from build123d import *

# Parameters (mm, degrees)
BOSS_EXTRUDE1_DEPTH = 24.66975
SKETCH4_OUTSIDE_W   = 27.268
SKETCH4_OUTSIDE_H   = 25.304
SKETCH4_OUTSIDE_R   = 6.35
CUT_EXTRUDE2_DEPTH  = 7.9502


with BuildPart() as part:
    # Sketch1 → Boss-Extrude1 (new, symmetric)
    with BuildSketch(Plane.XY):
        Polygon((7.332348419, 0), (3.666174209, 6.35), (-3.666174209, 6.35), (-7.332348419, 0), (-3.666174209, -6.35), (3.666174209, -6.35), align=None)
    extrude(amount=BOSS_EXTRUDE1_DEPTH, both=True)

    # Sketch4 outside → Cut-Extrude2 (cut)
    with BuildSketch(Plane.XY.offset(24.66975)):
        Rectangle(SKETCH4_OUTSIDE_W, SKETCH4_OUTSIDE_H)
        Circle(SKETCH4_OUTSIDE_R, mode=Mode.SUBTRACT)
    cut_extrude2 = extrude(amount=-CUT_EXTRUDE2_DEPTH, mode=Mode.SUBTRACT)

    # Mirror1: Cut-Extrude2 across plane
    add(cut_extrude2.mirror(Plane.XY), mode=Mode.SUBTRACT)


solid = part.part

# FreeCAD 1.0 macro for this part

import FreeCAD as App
import Part
import Sketcher

V = App.Vector
Q = App.Units.Quantity


def add_polygon(sketch, points):
    """Adds a closed chain of lines whose ends are joined by coincident constraints."""
    first, n = sketch.GeometryCount, len(points)
    for a, b in zip(points, points[1:] + points[:1]):
        sketch.addGeometry(Part.LineSegment(App.Vector(*a, 0), App.Vector(*b, 0)), False)
    for i in range(n):
        sketch.addConstraint(Sketcher.Constraint("Coincident", first + i, 2, first + (i + 1) % n, 1))

doc = App.newDocument("Part")
params = doc.addObject("Spreadsheet::Sheet", "Params")
for row, (alias, value) in enumerate([
    ("pad1_length", "1.9425 in"),
    ("sketch2_diameter", "0.5 in"),
    ("pocket1_length", "0.313 in"),
], start=1):
    params.set(f"A{row}", alias)
    params.set(f"B{row}", "=" + value)
    params.setAlias(f"B{row}", alias)

body = doc.addObject("PartDesign::Body", "Body")

sketch1 = body.newObject("Sketcher::SketchObject", "Sketch")
sketch1.AttachmentSupport = (doc.getObject("XY_Plane"), [""])
sketch1.MapMode = "FlatFace"
add_polygon(sketch1, [(7, 0), (4, 6), (-4, 6), (-7, 0), (-4, -6), (4, -6)])
sketch1.addConstraint(Sketcher.Constraint("Horizontal", 1))
sketch1.addConstraint(Sketcher.Constraint("Horizontal", 4))
sketch1.addConstraint(Sketcher.Constraint("Symmetric", 0, 2, 3, 2, -1, 1))
sketch1.addConstraint(Sketcher.Constraint("Symmetric", 2, 2, 5, 2, -1, 1))
sketch1.addConstraint(Sketcher.Constraint("PointOnObject", 2, 2, -1))
sketch1.addConstraint(Sketcher.Constraint("Parallel", 2, 5))
sketch1.addConstraint(Sketcher.Constraint("Vertical", 1, 2, 3, 2))
sketch1.addConstraint(Sketcher.Constraint("Angle", 0, Q("120 deg")))
sketch1.addConstraint(Sketcher.Constraint("DistanceY", 3, 2, 1, 2, Q("0.5 in")))
sketch1.addConstraint(Sketcher.Constraint("DistanceX", 1, 2, 1, 1, Q("7.332348 mm")))
pad1 = body.newObject("PartDesign::Pad", "Pad")
pad1.Profile = sketch1
pad1.setExpression("Length", "Params.pad1_length")
pad1.Midplane = True

sketch2 = body.newObject("Sketcher::SketchObject", "Sketch001")
sketch2.AttachmentSupport = (doc.getObject("XY_Plane"), [""])
sketch2.MapMode = "FlatFace"
sketch2.AttachmentOffset = App.Placement(V(0, 0, 24.66975), App.Rotation())
add_polygon(sketch2, [(-14, 13), (-14, -13), (14, -13), (14, 13)])
sketch2.addGeometry(Part.Circle(V(0, 0, 0), V(0, 0, 1), 6), False)
sketch2.addConstraint(Sketcher.Constraint("Vertical", 0))
sketch2.addConstraint(Sketcher.Constraint("Horizontal", 1))
sketch2.addConstraint(Sketcher.Constraint("Vertical", 2))
sketch2.addConstraint(Sketcher.Constraint("Horizontal", 3))
sketch2.addConstraint(Sketcher.Constraint("Coincident", 4, 3, -1, 1))
sketch2.addConstraint(Sketcher.Constraint("Symmetric", 0, 2, 2, 2, -1, 1))
sketch2.addConstraint(Sketcher.Constraint("Diameter", 4, Q("0.5 in")))
sketch2.addConstraint(Sketcher.Constraint("DistanceX", 1, 1, 1, 2, Q("27.268 mm")))
sketch2.addConstraint(Sketcher.Constraint("DistanceY", 0, 2, 0, 1, Q("25.304 mm")))
sketch2.setExpression("Constraints[10]", "Params.sketch2_diameter")
pocket1 = body.newObject("PartDesign::Pocket", "Pocket")
pocket1.Profile = sketch2
pocket1.setExpression("Length", "Params.pocket1_length")
doc.recompute()

mirrored = body.newObject("PartDesign::Mirrored", "Mirrored")
mirrored.Originals = [pocket1]
mirrored.MirrorPlane = (doc.getObject("XY_Plane"), [""])
body.Tip = mirrored

doc.recompute()
